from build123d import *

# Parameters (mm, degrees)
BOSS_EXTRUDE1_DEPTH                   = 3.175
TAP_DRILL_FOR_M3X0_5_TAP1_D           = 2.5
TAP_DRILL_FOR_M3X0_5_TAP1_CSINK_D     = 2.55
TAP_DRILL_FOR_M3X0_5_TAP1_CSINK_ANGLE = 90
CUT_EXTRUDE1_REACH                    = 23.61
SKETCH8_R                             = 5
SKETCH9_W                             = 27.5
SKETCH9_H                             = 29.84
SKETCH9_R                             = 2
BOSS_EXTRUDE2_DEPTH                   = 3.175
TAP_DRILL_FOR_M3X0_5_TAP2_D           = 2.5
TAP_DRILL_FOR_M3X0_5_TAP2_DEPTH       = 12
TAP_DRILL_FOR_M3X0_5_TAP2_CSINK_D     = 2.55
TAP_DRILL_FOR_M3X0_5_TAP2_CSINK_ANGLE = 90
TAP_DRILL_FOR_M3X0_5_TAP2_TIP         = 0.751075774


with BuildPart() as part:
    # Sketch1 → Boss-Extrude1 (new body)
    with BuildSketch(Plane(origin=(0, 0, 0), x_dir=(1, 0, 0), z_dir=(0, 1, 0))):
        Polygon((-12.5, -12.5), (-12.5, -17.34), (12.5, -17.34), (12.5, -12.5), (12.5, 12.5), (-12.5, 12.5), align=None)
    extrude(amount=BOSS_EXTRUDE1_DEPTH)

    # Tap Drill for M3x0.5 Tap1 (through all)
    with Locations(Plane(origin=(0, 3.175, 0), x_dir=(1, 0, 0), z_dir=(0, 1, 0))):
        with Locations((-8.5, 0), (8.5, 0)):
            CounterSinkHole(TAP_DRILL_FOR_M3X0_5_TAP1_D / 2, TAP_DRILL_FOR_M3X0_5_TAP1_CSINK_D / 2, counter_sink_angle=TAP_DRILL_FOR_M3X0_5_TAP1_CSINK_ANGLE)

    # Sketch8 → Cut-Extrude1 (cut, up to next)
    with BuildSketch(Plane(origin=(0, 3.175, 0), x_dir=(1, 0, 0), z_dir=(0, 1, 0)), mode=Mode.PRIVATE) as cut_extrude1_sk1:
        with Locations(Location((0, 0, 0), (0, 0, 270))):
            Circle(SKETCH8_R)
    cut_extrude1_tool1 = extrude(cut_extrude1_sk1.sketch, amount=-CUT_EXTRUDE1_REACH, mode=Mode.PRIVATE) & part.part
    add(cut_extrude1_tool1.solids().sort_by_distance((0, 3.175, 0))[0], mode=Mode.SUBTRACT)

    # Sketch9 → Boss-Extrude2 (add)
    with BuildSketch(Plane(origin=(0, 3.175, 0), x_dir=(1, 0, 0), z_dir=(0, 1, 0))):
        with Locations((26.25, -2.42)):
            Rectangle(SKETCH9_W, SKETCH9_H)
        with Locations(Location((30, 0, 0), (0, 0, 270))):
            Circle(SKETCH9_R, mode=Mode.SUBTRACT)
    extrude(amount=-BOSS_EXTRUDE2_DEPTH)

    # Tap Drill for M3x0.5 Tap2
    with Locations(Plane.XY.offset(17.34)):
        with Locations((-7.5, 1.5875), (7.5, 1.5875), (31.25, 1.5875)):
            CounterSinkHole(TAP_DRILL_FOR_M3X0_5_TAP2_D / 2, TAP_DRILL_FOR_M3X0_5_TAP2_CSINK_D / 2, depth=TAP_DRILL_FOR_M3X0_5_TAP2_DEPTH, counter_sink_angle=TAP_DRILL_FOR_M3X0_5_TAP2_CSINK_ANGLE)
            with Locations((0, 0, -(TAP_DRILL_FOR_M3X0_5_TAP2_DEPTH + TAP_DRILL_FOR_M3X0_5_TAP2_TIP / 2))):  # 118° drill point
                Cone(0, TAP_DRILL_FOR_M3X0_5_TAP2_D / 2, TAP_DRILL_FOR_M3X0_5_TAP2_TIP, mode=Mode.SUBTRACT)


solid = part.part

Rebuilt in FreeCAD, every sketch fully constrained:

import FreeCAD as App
import Part
import Sketcher

doc = App.newDocument("Part")
body = doc.addObject("PartDesign::Body", "Body")

sketch1 = doc.addObject("Sketcher::SketchObject", "Sketch")
body.addObject(sketch1)
sketch1.AttachmentSupport = (doc.XZ_Plane, [""])
sketch1.MapMode = "FlatFace"
sketch1.addGeometry(Part.LineSegment(App.Vector(-12, 17, 0), App.Vector(12, 17, 0)), False)
sketch1.addGeometry(Part.LineSegment(App.Vector(12, 17, 0), App.Vector(12, -12, 0)), False)
sketch1.addGeometry(Part.LineSegment(App.Vector(12, -12, 0), App.Vector(-12, -12, 0)), False)
sketch1.addGeometry(Part.LineSegment(App.Vector(-12, -12, 0), App.Vector(-12, 17, 0)), False)
sketch1.addConstraint(Sketcher.Constraint("Coincident", 0, 2, 1, 1))
sketch1.addConstraint(Sketcher.Constraint("Coincident", 1, 2, 2, 1))
sketch1.addConstraint(Sketcher.Constraint("Coincident", 2, 2, 3, 1))
sketch1.addConstraint(Sketcher.Constraint("Coincident", 3, 2, 0, 1))
sketch1.addConstraint(Sketcher.Constraint("Horizontal", 0))
sketch1.addConstraint(Sketcher.Constraint("Vertical", 1))
sketch1.addConstraint(Sketcher.Constraint("Horizontal", 2))
sketch1.addConstraint(Sketcher.Constraint("Vertical", 3))
sketch1.addConstraint(Sketcher.Constraint("DistanceX", 0, 1, 0, 2, 25.0))
sketch1.addConstraint(Sketcher.Constraint("DistanceY", 1, 2, 1, 1, 29.84))
sketch1.addConstraint(Sketcher.Constraint("DistanceX", -1, 1, 0, 2, 12.5))
sketch1.addConstraint(Sketcher.Constraint("DistanceY", 1, 2, -1, 1, 12.5))
pad1 = doc.addObject("PartDesign::Pad", "Pad")
body.addObject(pad1)
pad1.Profile = sketch1
pad1.Length = 3.175
pad1.Reversed = True

sketch2 = doc.addObject("Sketcher::SketchObject", "Sketch001")
body.addObject(sketch2)
sketch2.AttachmentSupport = (doc.XZ_Plane, [""])
sketch2.MapMode = "FlatFace"
sketch2.AttachmentOffset = App.Placement(App.Vector(0, 0, -3.175), App.Rotation())
sketch2.addGeometry(Part.Circle(App.Vector(-8.5, 0, 0), App.Vector(0, 0, 1), 1.2), False)
sketch2.addGeometry(Part.Circle(App.Vector(8.5, 0, 0), App.Vector(0, 0, 1), 1.2), False)
sketch2.addConstraint(Sketcher.Constraint("Equal", 0, 1))
sketch2.addConstraint(Sketcher.Constraint("Symmetric", 0, 3, 1, 3, -1, 1))
sketch2.addConstraint(Sketcher.Constraint("PointOnObject", 0, 3, -1))
sketch2.addConstraint(Sketcher.Constraint("Diameter", 0, 2.5))
sketch2.addConstraint(Sketcher.Constraint("DistanceX", 0, 3, 1, 3, 17.0))
doc.recompute()
hole = doc.addObject("PartDesign::Hole", "Hole")
body.addObject(hole)
hole.Profile = sketch2
hole.ThreadType = "None"
hole.Diameter = 2.5
hole.DepthType = "ThroughAll"
hole.HoleCutType = "Countersink"
hole.HoleCutDiameter = 2.55
hole.HoleCutCountersinkAngle = 90
hole.Reversed = True

sketch3 = doc.addObject("Sketcher::SketchObject", "Sketch002")
body.addObject(sketch3)
sketch3.AttachmentSupport = (doc.XZ_Plane, [""])
sketch3.MapMode = "FlatFace"
sketch3.AttachmentOffset = App.Placement(App.Vector(0, 0, -3.175), App.Rotation())
sketch3.addGeometry(Part.Circle(App.Vector(0, 0, 0), App.Vector(0, 0, 1), 5), False)
sketch3.addConstraint(Sketcher.Constraint("Coincident", 0, 3, -1, 1))
sketch3.addConstraint(Sketcher.Constraint("Diameter", 0, 10.0))
pocket1 = doc.addObject("PartDesign::Pocket", "Pocket")
body.addObject(pocket1)
pocket1.Profile = sketch3
pocket1.Type = "UpToFirst"
pocket1.Reversed = True

sketch4 = doc.addObject("Sketcher::SketchObject", "Sketch003")
body.addObject(sketch4)
sketch4.AttachmentSupport = (doc.XZ_Plane, [""])
sketch4.MapMode = "FlatFace"
sketch4.AttachmentOffset = App.Placement(App.Vector(0, 0, -3.175), App.Rotation())
sketch4.addGeometry(Part.LineSegment(App.Vector(12.5, -12.5, 0), App.Vector(12.5, 17.3, 0)), False)
sketch4.addGeometry(Part.LineSegment(App.Vector(12.5, 17.3, 0), App.Vector(40, 17.3, 0)), False)
sketch4.addGeometry(Part.LineSegment(App.Vector(40, 17.3, 0), App.Vector(40, -12.5, 0)), False)
sketch4.addGeometry(Part.LineSegment(App.Vector(40, -12.5, 0), App.Vector(12.5, -12.5, 0)), False)
sketch4.addGeometry(Part.Circle(App.Vector(30, 0, 0), App.Vector(0, 0, 1), 2), False)
sketch4.addConstraint(Sketcher.Constraint("Coincident", 0, 2, 1, 1))
sketch4.addConstraint(Sketcher.Constraint("Coincident", 1, 2, 2, 1))
sketch4.addConstraint(Sketcher.Constraint("Coincident", 2, 2, 3, 1))
sketch4.addConstraint(Sketcher.Constraint("Coincident", 3, 2, 0, 1))
sketch4.addConstraint(Sketcher.Constraint("Vertical", 0))
sketch4.addConstraint(Sketcher.Constraint("Horizontal", 1))
sketch4.addConstraint(Sketcher.Constraint("Vertical", 2))
sketch4.addConstraint(Sketcher.Constraint("Horizontal", 3))
sketch4.addConstraint(Sketcher.Constraint("PointOnObject", 4, 3, -1))
sketch4.addConstraint(Sketcher.Constraint("Diameter", 4, 4.0))
sketch4.addConstraint(Sketcher.Constraint("DistanceX", 1, 1, 1, 2, 27.5))
sketch4.addConstraint(Sketcher.Constraint("DistanceX", -1, 1, 4, 3, 30.0))
sketch4.addConstraint(Sketcher.Constraint("DistanceX", -1, 1, 1, 2, 40.0))
sketch4.addConstraint(Sketcher.Constraint("DistanceY", 0, 1, 0, 2, 29.84))
sketch4.addConstraint(Sketcher.Constraint("DistanceY", 2, 2, -1, 1, 12.5))
pad2 = doc.addObject("PartDesign::Pad", "Pad001")
body.addObject(pad2)
pad2.Profile = sketch4
pad2.Length = 3.175

sketch5 = doc.addObject("Sketcher::SketchObject", "Sketch004")
body.addObject(sketch5)
sketch5.AttachmentSupport = (doc.XY_Plane, [""])
sketch5.MapMode = "FlatFace"
sketch5.AttachmentOffset = App.Placement(App.Vector(0, 0, 17.34), App.Rotation())
sketch5.addGeometry(Part.Circle(App.Vector(-7.5, 1.6, 0), App.Vector(0, 0, 1), 1.2), False)
sketch5.addGeometry(Part.Circle(App.Vector(7.5, 1.6, 0), App.Vector(0, 0, 1), 1.2), False)
sketch5.addGeometry(Part.Circle(App.Vector(31.2, 1.6, 0), App.Vector(0, 0, 1), 1.2), False)
sketch5.addConstraint(Sketcher.Constraint("Equal", 0, 1))
sketch5.addConstraint(Sketcher.Constraint("Equal", 1, 2))
sketch5.addConstraint(Sketcher.Constraint("Symmetric", 0, 3, 1, 3, -2))
sketch5.addConstraint(Sketcher.Constraint("Horizontal", 1, 3, 2, 3))
sketch5.addConstraint(Sketcher.Constraint("Diameter", 0, 2.5))
sketch5.addConstraint(Sketcher.Constraint("DistanceX", 0, 3, 1, 3, 15.0))
sketch5.addConstraint(Sketcher.Constraint("DistanceX", -1, 1, 2, 3, 31.25))
sketch5.addConstraint(Sketcher.Constraint("DistanceY", -1, 1, 0, 3, 1.5875))
doc.recompute()
hole2 = doc.addObject("PartDesign::Hole", "Hole001")
body.addObject(hole2)
hole2.Profile = sketch5
hole2.ThreadType = "None"
hole2.Diameter = 2.5
hole2.DepthType = "Dimension"
hole2.Depth = 12
hole2.DrillPoint = "Angled"
hole2.DrillPointAngle = 118
hole2.HoleCutType = "Countersink"
hole2.HoleCutDiameter = 2.55
hole2.HoleCutCountersinkAngle = 90

doc.recompute()
